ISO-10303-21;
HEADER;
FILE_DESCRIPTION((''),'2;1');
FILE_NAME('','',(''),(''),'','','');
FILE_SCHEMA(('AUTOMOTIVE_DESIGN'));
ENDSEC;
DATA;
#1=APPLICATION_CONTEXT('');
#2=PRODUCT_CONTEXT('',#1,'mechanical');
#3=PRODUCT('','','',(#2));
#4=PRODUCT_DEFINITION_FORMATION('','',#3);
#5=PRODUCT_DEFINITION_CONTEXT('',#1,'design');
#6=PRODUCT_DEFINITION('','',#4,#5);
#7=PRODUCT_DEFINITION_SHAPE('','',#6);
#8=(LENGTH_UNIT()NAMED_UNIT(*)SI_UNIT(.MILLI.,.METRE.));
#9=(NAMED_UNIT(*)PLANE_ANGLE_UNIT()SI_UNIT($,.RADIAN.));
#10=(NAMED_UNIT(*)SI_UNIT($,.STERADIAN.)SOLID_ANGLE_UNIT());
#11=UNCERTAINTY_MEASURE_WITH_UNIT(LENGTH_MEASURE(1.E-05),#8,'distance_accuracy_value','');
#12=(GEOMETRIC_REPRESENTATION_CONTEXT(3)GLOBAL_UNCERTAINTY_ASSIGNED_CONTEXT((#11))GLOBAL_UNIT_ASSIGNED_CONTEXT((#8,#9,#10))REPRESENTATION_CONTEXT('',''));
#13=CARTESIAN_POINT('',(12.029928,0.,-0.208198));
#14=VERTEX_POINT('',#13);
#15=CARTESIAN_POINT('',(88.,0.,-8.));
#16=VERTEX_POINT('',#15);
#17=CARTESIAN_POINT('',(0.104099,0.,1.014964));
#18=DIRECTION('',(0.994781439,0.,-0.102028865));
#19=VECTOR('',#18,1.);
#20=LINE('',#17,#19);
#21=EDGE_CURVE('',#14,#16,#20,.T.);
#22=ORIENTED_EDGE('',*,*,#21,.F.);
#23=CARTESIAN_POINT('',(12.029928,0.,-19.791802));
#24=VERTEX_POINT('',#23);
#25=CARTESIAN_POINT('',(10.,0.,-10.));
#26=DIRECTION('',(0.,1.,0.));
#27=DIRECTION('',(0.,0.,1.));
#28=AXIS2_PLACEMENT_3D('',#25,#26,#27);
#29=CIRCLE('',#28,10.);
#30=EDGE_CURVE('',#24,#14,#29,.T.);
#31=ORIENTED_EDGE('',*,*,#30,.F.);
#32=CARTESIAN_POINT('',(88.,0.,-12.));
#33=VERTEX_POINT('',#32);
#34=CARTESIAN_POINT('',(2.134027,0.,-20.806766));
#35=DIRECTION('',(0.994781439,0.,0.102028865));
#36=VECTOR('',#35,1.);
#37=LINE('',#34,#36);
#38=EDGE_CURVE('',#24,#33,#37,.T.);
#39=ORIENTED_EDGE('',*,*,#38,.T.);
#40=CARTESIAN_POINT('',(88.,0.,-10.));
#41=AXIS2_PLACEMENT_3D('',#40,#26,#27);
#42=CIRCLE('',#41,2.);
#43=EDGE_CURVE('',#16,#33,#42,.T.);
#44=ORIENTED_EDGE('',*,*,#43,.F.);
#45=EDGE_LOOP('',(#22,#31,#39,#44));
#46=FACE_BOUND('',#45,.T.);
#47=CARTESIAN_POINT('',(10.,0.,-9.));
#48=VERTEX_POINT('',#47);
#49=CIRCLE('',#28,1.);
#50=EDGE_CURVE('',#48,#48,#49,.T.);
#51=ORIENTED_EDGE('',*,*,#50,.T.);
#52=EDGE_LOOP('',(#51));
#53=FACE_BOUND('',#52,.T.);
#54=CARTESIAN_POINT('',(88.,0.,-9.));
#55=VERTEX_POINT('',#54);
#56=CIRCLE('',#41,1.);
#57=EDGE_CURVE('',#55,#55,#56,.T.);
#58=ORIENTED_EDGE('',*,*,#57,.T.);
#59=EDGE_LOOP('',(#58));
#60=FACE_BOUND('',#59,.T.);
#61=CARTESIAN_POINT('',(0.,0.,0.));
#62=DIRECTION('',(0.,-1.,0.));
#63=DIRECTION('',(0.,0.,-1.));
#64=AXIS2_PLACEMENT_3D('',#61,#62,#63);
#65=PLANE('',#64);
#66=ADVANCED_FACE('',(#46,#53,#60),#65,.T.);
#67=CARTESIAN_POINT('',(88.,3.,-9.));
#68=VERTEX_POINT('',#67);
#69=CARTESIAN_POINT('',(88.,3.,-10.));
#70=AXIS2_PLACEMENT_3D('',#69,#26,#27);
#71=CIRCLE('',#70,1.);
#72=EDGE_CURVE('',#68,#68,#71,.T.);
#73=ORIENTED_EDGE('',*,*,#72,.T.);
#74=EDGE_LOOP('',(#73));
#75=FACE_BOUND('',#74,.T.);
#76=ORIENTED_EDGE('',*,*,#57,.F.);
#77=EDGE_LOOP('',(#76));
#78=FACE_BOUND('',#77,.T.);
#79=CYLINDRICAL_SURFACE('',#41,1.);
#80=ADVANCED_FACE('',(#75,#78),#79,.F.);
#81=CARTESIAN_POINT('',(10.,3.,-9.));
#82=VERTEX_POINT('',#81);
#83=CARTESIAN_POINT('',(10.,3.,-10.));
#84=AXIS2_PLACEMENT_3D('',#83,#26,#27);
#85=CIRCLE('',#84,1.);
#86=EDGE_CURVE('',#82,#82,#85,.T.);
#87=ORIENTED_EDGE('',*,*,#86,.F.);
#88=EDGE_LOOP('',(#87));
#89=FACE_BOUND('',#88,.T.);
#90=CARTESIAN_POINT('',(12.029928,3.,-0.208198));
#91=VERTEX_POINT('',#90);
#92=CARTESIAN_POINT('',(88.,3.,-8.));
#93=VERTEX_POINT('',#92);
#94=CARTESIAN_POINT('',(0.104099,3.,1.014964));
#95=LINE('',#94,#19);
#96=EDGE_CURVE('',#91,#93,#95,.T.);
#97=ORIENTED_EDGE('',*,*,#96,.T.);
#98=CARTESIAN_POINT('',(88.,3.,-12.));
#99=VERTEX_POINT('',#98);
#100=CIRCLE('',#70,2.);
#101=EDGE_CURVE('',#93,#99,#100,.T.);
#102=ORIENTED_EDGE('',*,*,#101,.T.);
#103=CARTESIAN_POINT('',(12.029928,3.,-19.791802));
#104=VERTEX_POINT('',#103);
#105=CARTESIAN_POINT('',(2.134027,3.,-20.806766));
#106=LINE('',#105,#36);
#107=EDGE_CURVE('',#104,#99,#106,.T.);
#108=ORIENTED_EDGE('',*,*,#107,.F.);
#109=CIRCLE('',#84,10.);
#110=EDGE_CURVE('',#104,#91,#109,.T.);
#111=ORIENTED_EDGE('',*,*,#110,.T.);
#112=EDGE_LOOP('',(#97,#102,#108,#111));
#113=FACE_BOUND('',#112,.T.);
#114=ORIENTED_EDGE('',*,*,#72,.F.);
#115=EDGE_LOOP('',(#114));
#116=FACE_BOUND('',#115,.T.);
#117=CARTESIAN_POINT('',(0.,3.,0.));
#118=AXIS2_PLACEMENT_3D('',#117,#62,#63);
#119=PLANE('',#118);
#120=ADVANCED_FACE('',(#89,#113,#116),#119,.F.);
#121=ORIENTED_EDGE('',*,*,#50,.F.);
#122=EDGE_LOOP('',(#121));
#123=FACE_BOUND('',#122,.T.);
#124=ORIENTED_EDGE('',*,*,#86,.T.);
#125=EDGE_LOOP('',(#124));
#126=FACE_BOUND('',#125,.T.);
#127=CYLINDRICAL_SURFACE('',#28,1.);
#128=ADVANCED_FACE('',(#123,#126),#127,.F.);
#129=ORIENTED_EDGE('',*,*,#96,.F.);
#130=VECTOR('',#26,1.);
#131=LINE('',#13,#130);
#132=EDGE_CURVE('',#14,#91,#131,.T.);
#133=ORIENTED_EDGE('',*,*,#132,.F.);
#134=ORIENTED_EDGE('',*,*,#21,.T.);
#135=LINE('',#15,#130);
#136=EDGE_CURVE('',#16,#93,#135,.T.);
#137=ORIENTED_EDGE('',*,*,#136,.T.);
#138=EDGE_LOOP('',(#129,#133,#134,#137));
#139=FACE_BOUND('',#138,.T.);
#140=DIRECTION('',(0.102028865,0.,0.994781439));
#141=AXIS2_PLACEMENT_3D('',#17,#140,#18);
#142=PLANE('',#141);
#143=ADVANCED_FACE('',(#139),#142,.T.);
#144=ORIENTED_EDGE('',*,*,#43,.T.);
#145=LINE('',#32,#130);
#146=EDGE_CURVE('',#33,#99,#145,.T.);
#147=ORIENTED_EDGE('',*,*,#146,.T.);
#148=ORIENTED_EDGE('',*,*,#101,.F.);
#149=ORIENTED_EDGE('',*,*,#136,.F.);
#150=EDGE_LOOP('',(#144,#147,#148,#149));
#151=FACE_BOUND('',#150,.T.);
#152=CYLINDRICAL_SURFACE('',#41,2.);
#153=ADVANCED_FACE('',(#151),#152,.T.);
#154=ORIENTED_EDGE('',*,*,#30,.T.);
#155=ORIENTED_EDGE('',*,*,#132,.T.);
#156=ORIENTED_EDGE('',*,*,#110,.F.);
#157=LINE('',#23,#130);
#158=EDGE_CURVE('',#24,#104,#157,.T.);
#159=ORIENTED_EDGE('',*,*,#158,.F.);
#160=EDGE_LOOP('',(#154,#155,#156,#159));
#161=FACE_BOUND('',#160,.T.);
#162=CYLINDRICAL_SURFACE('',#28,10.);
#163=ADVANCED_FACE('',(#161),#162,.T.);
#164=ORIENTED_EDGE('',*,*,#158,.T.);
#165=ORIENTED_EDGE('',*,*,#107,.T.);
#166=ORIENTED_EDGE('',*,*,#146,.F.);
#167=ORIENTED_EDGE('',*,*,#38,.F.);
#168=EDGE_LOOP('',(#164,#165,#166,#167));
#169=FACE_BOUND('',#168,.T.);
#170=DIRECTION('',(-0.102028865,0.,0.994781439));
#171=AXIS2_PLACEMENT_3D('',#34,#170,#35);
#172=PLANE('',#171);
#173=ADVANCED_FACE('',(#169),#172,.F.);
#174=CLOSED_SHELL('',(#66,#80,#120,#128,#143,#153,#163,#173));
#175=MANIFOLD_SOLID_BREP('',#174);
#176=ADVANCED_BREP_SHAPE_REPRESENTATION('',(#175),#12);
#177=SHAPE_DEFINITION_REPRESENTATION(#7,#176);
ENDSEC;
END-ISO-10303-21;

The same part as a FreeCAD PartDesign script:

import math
import FreeCAD as App
import Part
import Sketcher
from FreeCAD import Vector


def add_polygon(sketch, points):
    """Adds a closed chain of lines whose ends are joined by coincident constraints."""
    first, n = sketch.GeometryCount, len(points)
    for a, b in zip(points, points[1:] + points[:1]):
        sketch.addGeometry(Part.LineSegment(App.Vector(*a, 0), App.Vector(*b, 0)), False)
    for i in range(n):
        sketch.addConstraint(Sketcher.Constraint("Coincident", first + i, 2, first + (i + 1) % n, 1))

doc = App.newDocument("Part")
params = doc.addObject("Spreadsheet::Sheet", "Params")
for row, (alias, value) in enumerate([
    ("sketch1_width", "90 mm"),
    ("sketch1_height", "20 mm"),
    ("pad1_length", "3 mm"),
    ("sketch2_radius", "10 mm"),
    ("sketch2_radius2", "2 mm"),
    ("sketch2_width", "80 mm"),
    ("sketch3_diameter", "2 mm"),
], start=1):
    params.set(f"A{row}", alias)
    params.set(f"B{row}", "=" + value)
    params.setAlias(f"B{row}", alias)

body = doc.addObject("PartDesign::Body", "Body")

# Sketch on XZ plane
sketch1 = doc.addObject("Sketcher::SketchObject", "Sketch")
body.addObject(sketch1)
sketch1.AttachmentSupport = (doc.XZ_Plane, [""])
sketch1.MapMode = "FlatFace"
add_polygon(sketch1, [(0, -20), (0, 0), (90, 0), (90, -20)])  # lines 0-3
sketch1.addConstraint(Sketcher.Constraint("Vertical", 0))
sketch1.addConstraint(Sketcher.Constraint("Horizontal", 1))
sketch1.addConstraint(Sketcher.Constraint("Vertical", 2))
sketch1.addConstraint(Sketcher.Constraint("Horizontal", 3))
sketch1.addConstraint(Sketcher.Constraint("Coincident", 0, 2, -1, 1))
sketch1.addConstraint(Sketcher.Constraint("DistanceX", 1, 1, 1, 2, 90.0))
sketch1.addConstraint(Sketcher.Constraint("DistanceY", 0, 1, 0, 2, 20.0))
sketch1.setExpression("Constraints[9]", "Params.sketch1_width")
sketch1.setExpression("Constraints[10]", "Params.sketch1_height")
pad1 = doc.addObject("PartDesign::Pad", "Pad")
body.addObject(pad1)
pad1.Profile = sketch1
pad1.setExpression("Length", "Params.pad1_length")
pad1.Reversed = True

# Sketch on XZ plane
sketch2 = doc.addObject("Sketcher::SketchObject", "Sketch001")
body.addObject(sketch2)
sketch2.AttachmentSupport = (doc.XZ_Plane, [""])
sketch2.MapMode = "FlatFace"
sketch2.AttachmentOffset = App.Placement(Vector(0, 0, -3), App.Rotation())
sketch2.addGeometry(Part.LineSegment(Vector(90, -20, 0), Vector(10, -20, 0)), False)
sketch2.addGeometry(Part.ArcOfCircle(Part.Circle(Vector(10, -10, 0), Vector(0, 0, 1), 10), math.radians(-90), math.radians(-78.29)), False)
sketch2.addGeometry(Part.LineSegment(Vector(12, -19.8, 0), Vector(88, -12, 0)), False)
sketch2.addGeometry(Part.ArcOfCircle(Part.Circle(Vector(88, -10, 0), Vector(0, 0, 1), 2), math.radians(-90), math.radians(0)), False)
sketch2.addGeometry(Part.LineSegment(Vector(90, -10, 0), Vector(90, -20, 0)), False)
sketch2.addGeometry(Part.LineSegment(Vector(90, 0, 0), Vector(90, -10, 0)), False)
sketch2.addGeometry(Part.ArcOfCircle(Part.Circle(Vector(88, -10, 0), Vector(0, 0, 1), 2), math.radians(0), math.radians(90)), False)
sketch2.addGeometry(Part.LineSegment(Vector(88, -8, 0), Vector(12, -0.2, 0)), False)
sketch2.addGeometry(Part.ArcOfCircle(Part.Circle(Vector(10, -10, 0), Vector(0, 0, 1), 10), math.radians(78.29), math.radians(90)), False)
sketch2.addGeometry(Part.LineSegment(Vector(10, 0, 0), Vector(90, 0, 0)), False)
sketch2.addGeometry(Part.ArcOfCircle(Part.Circle(Vector(10, -10, 0), Vector(0, 0, 1), 10), math.radians(90), math.radians(180)), False)
sketch2.addGeometry(Part.LineSegment(Vector(0, -10, 0), Vector(0, 0, 0)), False)
sketch2.addGeometry(Part.LineSegment(Vector(0, 0, 0), Vector(10, 0, 0)), False)
sketch2.addGeometry(Part.ArcOfCircle(Part.Circle(Vector(10, -10, 0), Vector(0, 0, 1), 10), math.radians(180), math.radians(270)), False)
sketch2.addGeometry(Part.LineSegment(Vector(10, -20, 0), Vector(0, -20, 0)), False)
sketch2.addGeometry(Part.LineSegment(Vector(0, -20, 0), Vector(0, -10, 0)), False)
sketch2.addConstraint(Sketcher.Constraint("Tangent", 0, 2, 1, 1))
sketch2.addConstraint(Sketcher.Constraint("Coincident", 1, 2, 2, 1))
sketch2.addConstraint(Sketcher.Constraint("Coincident", 2, 2, 3, 1))
sketch2.addConstraint(Sketcher.Constraint("Tangent", 3, 2, 4, 1))
sketch2.addConstraint(Sketcher.Constraint("Coincident", 4, 2, 0, 1))
sketch2.addConstraint(Sketcher.Constraint("Tangent", 5, 2, 6, 1))
sketch2.addConstraint(Sketcher.Constraint("Coincident", 6, 2, 7, 1))
sketch2.addConstraint(Sketcher.Constraint("Coincident", 7, 2, 8, 1))
sketch2.addConstraint(Sketcher.Constraint("Tangent", 8, 2, 9, 1))
sketch2.addConstraint(Sketcher.Constraint("Coincident", 9, 2, 5, 1))
sketch2.addConstraint(Sketcher.Constraint("Tangent", 10, 2, 11, 1))
sketch2.addConstraint(Sketcher.Constraint("Coincident", 11, 2, 12, 1))
sketch2.addConstraint(Sketcher.Constraint("Tangent", 12, 2, 10, 1))
sketch2.addConstraint(Sketcher.Constraint("Tangent", 13, 2, 14, 1))
sketch2.addConstraint(Sketcher.Constraint("Coincident", 14, 2, 15, 1))
sketch2.addConstraint(Sketcher.Constraint("Tangent", 15, 2, 13, 1))
sketch2.addConstraint(Sketcher.Constraint("Horizontal", 0))
sketch2.addConstraint(Sketcher.Constraint("Vertical", 4))
sketch2.addConstraint(Sketcher.Constraint("Vertical", 5))
sketch2.addConstraint(Sketcher.Constraint("Horizontal", 9))
sketch2.addConstraint(Sketcher.Constraint("Vertical", 11))
sketch2.addConstraint(Sketcher.Constraint("Horizontal", 12))
sketch2.addConstraint(Sketcher.Constraint("Horizontal", 14))
sketch2.addConstraint(Sketcher.Constraint("Vertical", 15))
sketch2.addConstraint(Sketcher.Constraint("Coincident", 11, 2, -1, 1))
sketch2.addConstraint(Sketcher.Constraint("Coincident", 6, 3, 3, 3))
sketch2.addConstraint(Sketcher.Constraint("Coincident", 8, 3, 1, 3))
sketch2.addConstraint(Sketcher.Constraint("Coincident", 10, 3, 1, 3))
sketch2.addConstraint(Sketcher.Constraint("Coincident", 13, 3, 1, 3))
sketch2.addConstraint(Sketcher.Constraint("Equal", 3, 6))
sketch2.addConstraint(Sketcher.Constraint("Equal", 1, 8))
sketch2.addConstraint(Sketcher.Constraint("Equal", 8, 10))
sketch2.addConstraint(Sketcher.Constraint("Equal", 10, 13))
sketch2.addConstraint(Sketcher.Constraint("Horizontal", 1, 3, 3, 3))
sketch2.addConstraint(Sketcher.Constraint("Vertical", 6, 3, 2, 2))
sketch2.addConstraint(Sketcher.Constraint("Vertical", 2, 2, 6, 2))
sketch2.addConstraint(Sketcher.Constraint("Vertical", 1, 2, 7, 2))
sketch2.addConstraint(Sketcher.Constraint("Radius", 1, 10.0))
sketch2.addConstraint(Sketcher.Constraint("Radius", 3, 2.0))
sketch2.addConstraint(Sketcher.Constraint("DistanceX", 0, 2, 0, 1, 80.0))
sketch2.addConstraint(Sketcher.Constraint("DistanceX", -1, 1, 1, 2, 12.029928))
sketch2.setExpression("Constraints[37]", "Params.sketch2_radius")
sketch2.setExpression("Constraints[38]", "Params.sketch2_radius2")
sketch2.setExpression("Constraints[39]", "Params.sketch2_width")
pocket1 = doc.addObject("PartDesign::Pocket", "Pocket")
body.addObject(pocket1)
pocket1.Profile = sketch2
pocket1.Type = "ThroughAll"
pocket1.Reversed = True

# Sketch on XZ plane
sketch3 = doc.addObject("Sketcher::SketchObject", "Sketch002")
body.addObject(sketch3)
sketch3.AttachmentSupport = (doc.XZ_Plane, [""])
sketch3.MapMode = "FlatFace"
sketch3.AttachmentOffset = App.Placement(Vector(0, 0, -3), App.Rotation())
sketch3.addGeometry(Part.Circle(Vector(10, -10, 0), Vector(0, 0, 1), 1), False)
sketch3.addGeometry(Part.Circle(Vector(88, -10, 0), Vector(0, 0, 1), 1), False)
sketch3.addConstraint(Sketcher.Constraint("Equal", 0, 1))
sketch3.addConstraint(Sketcher.Constraint("Horizontal", 0, 3, 1, 3))
sketch3.addConstraint(Sketcher.Constraint("Diameter", 0, 2.0))
sketch3.addConstraint(Sketcher.Constraint("DistanceX", -1, 1, 0, 3, 10.0))
sketch3.addConstraint(Sketcher.Constraint("DistanceY", 0, 3, -1, 1, 10.0))
sketch3.addConstraint(Sketcher.Constraint("DistanceX", -1, 1, 1, 3, 88.0))
sketch3.setExpression("Constraints[2]", "Params.sketch3_diameter")
pocket2 = doc.addObject("PartDesign::Pocket", "Pocket001")
body.addObject(pocket2)
pocket2.Profile = sketch3
pocket2.Type = "ThroughAll"
pocket2.Reversed = True

doc.recompute()
